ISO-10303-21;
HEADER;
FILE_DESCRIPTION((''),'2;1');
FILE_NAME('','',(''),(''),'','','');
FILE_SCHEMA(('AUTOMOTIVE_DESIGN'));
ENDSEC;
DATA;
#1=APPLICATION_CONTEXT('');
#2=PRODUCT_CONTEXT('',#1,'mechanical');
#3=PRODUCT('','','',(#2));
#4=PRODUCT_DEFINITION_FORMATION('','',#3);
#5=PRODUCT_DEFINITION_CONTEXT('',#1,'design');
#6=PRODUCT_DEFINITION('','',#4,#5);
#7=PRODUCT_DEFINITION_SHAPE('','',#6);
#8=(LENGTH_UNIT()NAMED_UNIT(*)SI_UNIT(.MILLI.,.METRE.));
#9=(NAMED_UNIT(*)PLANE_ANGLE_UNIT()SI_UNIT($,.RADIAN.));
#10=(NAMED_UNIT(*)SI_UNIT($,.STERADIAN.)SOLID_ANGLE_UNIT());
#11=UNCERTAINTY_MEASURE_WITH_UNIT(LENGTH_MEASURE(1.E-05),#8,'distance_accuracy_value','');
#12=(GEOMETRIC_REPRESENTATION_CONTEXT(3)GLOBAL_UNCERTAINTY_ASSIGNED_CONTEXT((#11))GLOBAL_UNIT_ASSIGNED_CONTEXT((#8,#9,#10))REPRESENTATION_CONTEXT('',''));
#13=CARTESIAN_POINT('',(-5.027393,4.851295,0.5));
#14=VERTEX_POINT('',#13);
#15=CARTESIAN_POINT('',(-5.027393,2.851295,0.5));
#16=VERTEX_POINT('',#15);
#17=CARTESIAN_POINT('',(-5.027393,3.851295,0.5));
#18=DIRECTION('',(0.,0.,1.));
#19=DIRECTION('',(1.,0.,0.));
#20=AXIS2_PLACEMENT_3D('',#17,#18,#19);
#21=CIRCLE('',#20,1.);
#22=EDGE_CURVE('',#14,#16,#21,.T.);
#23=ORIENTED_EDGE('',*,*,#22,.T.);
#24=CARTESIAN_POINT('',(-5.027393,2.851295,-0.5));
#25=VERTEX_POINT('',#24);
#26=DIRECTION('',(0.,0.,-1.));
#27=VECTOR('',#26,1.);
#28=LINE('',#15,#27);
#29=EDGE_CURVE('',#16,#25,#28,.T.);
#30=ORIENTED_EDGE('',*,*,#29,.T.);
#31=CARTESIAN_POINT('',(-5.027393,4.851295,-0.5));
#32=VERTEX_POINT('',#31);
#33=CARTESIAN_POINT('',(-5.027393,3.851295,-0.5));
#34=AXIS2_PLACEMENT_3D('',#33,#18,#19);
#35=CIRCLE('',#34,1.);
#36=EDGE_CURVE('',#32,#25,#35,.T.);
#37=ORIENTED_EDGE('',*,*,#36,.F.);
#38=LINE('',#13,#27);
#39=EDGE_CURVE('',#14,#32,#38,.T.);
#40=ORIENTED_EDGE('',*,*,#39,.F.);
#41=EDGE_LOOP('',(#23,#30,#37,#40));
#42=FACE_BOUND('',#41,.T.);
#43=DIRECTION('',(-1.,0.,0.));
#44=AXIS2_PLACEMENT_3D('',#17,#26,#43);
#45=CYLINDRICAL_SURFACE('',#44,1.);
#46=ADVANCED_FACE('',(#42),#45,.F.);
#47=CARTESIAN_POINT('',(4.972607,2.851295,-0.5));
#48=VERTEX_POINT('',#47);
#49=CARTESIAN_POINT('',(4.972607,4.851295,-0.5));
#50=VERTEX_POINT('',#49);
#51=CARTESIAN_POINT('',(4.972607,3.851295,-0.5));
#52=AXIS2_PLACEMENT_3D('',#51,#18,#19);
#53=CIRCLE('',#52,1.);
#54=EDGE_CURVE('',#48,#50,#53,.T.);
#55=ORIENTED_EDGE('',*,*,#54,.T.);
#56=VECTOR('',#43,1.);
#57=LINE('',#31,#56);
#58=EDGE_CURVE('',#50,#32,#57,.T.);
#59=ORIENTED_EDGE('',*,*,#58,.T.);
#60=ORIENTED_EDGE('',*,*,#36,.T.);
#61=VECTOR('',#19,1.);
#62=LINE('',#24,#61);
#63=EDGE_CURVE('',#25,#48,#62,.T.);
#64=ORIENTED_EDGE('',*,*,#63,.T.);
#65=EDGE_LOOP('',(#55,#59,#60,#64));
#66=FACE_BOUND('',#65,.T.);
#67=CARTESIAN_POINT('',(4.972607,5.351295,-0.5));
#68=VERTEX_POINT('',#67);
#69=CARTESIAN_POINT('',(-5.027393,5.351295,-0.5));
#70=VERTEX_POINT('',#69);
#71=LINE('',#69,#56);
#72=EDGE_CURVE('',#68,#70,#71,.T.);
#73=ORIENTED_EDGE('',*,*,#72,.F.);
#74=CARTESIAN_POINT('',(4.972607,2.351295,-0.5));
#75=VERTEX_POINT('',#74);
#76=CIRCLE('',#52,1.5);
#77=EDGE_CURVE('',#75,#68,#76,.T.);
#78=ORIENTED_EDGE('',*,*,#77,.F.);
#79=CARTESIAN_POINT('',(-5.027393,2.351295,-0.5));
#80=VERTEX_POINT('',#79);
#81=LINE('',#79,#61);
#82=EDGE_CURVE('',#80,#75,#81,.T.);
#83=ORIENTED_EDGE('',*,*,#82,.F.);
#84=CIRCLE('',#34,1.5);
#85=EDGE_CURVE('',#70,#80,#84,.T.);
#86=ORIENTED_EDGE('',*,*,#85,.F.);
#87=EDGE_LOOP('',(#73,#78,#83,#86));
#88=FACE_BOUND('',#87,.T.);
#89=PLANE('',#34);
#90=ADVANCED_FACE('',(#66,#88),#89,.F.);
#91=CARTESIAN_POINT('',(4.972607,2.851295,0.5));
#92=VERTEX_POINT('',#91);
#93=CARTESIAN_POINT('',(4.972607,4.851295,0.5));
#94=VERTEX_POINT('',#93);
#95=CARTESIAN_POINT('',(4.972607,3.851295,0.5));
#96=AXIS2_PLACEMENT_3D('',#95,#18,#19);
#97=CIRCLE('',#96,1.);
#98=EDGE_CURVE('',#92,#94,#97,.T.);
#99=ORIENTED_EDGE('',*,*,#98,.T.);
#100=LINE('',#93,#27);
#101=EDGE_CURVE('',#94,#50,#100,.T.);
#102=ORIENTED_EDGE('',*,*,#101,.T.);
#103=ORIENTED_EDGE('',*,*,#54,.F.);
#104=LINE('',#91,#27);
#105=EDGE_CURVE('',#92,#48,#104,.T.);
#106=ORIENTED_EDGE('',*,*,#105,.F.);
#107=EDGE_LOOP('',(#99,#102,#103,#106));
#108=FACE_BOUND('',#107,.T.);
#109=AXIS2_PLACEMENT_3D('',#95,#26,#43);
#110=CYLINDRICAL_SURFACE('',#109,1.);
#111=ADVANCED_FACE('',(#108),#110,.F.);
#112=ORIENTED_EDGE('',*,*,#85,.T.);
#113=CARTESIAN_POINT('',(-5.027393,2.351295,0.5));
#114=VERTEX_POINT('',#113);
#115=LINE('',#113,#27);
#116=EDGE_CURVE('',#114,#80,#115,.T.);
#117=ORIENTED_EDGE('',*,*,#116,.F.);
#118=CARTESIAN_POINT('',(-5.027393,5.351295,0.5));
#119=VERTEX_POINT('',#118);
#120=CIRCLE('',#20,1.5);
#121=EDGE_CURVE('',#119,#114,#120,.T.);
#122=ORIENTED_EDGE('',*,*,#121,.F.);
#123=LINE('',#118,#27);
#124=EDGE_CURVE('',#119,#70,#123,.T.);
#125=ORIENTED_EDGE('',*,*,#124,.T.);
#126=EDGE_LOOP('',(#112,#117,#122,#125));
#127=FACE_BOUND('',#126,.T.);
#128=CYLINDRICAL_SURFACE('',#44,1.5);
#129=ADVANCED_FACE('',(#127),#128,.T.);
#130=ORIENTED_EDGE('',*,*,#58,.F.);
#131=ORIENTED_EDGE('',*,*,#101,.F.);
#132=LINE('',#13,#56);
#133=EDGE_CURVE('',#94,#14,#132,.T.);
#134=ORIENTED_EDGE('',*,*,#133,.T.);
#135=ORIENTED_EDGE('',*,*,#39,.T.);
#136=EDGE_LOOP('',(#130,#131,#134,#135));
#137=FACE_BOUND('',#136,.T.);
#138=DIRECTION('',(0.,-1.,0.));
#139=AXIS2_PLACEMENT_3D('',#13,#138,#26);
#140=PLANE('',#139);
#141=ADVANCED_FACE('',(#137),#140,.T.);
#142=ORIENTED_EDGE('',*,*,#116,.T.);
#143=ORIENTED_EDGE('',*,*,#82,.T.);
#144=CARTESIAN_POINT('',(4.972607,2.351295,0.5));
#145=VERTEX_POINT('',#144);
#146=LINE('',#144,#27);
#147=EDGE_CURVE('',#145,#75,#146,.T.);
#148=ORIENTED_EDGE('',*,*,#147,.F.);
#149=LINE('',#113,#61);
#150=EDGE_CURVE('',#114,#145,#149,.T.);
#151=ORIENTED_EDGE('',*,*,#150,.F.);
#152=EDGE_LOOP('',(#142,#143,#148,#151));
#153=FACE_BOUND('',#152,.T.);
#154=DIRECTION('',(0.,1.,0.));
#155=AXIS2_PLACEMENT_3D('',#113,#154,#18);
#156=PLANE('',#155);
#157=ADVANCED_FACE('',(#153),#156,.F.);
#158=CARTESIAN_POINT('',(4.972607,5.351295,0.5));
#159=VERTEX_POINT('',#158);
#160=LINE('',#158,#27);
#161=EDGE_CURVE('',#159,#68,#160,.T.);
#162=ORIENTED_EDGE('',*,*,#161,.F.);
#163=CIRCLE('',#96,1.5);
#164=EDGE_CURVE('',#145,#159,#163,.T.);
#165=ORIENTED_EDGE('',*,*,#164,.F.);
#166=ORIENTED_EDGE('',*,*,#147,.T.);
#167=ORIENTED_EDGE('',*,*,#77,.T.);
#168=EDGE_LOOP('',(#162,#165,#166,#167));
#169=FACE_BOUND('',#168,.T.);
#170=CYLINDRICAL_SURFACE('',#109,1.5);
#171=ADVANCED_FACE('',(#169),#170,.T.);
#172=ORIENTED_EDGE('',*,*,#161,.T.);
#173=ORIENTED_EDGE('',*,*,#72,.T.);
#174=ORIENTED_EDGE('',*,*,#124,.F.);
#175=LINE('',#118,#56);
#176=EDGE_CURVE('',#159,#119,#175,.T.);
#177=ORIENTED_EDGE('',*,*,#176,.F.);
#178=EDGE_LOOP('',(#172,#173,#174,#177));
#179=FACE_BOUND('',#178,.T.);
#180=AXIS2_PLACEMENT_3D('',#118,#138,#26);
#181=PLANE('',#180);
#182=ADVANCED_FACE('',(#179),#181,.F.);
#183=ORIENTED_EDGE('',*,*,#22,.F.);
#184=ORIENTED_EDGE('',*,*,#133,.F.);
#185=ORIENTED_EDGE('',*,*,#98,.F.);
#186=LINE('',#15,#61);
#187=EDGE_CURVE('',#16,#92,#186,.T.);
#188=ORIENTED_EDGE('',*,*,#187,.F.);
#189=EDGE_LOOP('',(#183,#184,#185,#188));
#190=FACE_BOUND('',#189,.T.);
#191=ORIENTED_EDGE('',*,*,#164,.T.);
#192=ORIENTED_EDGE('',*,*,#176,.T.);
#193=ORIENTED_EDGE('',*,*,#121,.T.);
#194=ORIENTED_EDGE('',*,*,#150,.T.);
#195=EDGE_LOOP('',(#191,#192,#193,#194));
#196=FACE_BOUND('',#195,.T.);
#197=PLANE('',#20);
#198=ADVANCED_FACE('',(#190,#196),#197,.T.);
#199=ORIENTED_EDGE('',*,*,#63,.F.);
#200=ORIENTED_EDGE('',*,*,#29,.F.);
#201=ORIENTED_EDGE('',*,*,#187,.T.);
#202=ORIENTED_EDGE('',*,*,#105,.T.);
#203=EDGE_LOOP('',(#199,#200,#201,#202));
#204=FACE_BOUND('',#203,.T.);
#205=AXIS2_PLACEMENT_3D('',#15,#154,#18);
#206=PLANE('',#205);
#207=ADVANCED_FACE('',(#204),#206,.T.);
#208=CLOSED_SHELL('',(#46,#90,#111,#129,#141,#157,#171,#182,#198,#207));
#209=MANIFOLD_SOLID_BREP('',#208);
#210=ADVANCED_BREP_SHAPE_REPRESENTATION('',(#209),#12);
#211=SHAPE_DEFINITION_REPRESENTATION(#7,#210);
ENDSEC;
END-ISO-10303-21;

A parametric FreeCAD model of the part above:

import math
import FreeCAD as App
import Part
import Sketcher
from FreeCAD import Vector

doc = App.newDocument("Part")
body = doc.addObject("PartDesign::Body", "Body")

# Sketch on XY plane
sketch1 = doc.addObject("Sketcher::SketchObject", "Sketch")
body.addObject(sketch1)
sketch1.AttachmentSupport = (doc.XY_Plane, [""])
sketch1.MapMode = "FlatFace"
sketch1.addGeometry([
    Part.LineSegment(Vector(5, 5.4, 0), Vector(-5, 5.4, 0)),  # 0
    Part.ArcOfCircle(Part.Circle(Vector(-5, 3.9, 0), Vector(0, 0, 1), 1.5), math.radians(90), math.radians(270)),  # 1
    Part.LineSegment(Vector(-5, 2.4, 0), Vector(5, 2.4, 0)),  # 2
    Part.ArcOfCircle(Part.Circle(Vector(5, 3.9, 0), Vector(0, 0, 1), 1.5), math.radians(-90), math.radians(90)),  # 3
    Part.LineSegment(Vector(-5, 4.9, 0), Vector(5, 4.9, 0)),  # 4
    Part.ArcOfCircle(Part.Circle(Vector(5, 3.9, 0), Vector(0, 0, 1), 1), math.radians(-90), math.radians(90)),  # 5
    Part.LineSegment(Vector(5, 2.9, 0), Vector(-5, 2.9, 0)),  # 6
    Part.ArcOfCircle(Part.Circle(Vector(-5, 3.9, 0), Vector(0, 0, 1), 1), math.radians(90), math.radians(270)),  # 7
], False)
sketch1.addConstraint([
    Sketcher.Constraint("Tangent", 0, 2, 1, 1),
    Sketcher.Constraint("Tangent", 1, 2, 2, 1),
    Sketcher.Constraint("Tangent", 2, 2, 3, 1),
    Sketcher.Constraint("Tangent", 3, 2, 0, 1),
    Sketcher.Constraint("Tangent", 4, 2, 5, 2),
    Sketcher.Constraint("Tangent", 5, 1, 6, 1),
    Sketcher.Constraint("Tangent", 6, 2, 7, 2),
    Sketcher.Constraint("Tangent", 7, 1, 4, 1),
    Sketcher.Constraint("Horizontal", 0),
    Sketcher.Constraint("Horizontal", 2),
    Sketcher.Constraint("Horizontal", 4),
    Sketcher.Constraint("Horizontal", 6),
    Sketcher.Constraint("Coincident", 5, 3, 3, 3),
    Sketcher.Constraint("Vertical", 7, 3, 0, 2),
    Sketcher.Constraint("Radius", 5, 1.0),
    Sketcher.Constraint("Radius", 1, 1.5),
    Sketcher.Constraint("DistanceX", 0, 2, 0, 1, 10.0),
    Sketcher.Constraint("DistanceX", 1, 3, -1, 1, 5.027393),
    Sketcher.Constraint("DistanceY", -1, 1, 1, 3, 3.851295),
])
pad1 = doc.addObject("PartDesign::Pad", "Pad")
body.addObject(pad1)
pad1.Profile = sketch1
pad1.Length = 1
pad1.Midplane = True

doc.recompute()
